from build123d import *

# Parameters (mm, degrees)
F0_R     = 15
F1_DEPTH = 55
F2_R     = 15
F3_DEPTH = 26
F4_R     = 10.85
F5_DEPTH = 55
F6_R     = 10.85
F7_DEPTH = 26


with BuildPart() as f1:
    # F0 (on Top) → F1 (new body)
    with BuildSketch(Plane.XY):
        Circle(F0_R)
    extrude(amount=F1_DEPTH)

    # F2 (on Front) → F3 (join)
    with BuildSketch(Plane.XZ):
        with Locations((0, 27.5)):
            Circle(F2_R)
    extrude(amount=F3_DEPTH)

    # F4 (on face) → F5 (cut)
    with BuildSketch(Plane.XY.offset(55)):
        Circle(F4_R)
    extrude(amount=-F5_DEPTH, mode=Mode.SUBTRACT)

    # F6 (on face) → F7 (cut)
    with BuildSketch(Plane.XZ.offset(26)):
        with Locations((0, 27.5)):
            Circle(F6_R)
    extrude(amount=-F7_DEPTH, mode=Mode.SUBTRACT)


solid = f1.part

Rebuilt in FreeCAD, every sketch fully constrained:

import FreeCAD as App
import Part
import Sketcher

V = App.Vector
Q = App.Units.Quantity

doc = App.newDocument("Part")
body = doc.addObject("PartDesign::Body", "Body")

sketch1 = body.newObject("Sketcher::SketchObject", "Sketch")
sketch1.AttachmentSupport = (doc.getObject("XY_Plane"), [""])
sketch1.MapMode = "FlatFace"
sketch1.addGeometry(Part.Circle(V(0, 0, 0), V(0, 0, 1), 15), False)
sketch1.addConstraint([
    Sketcher.Constraint("Coincident", 0, 3, -1, 1),
    Sketcher.Constraint("Diameter", 0, Q("30 mm")),
])
pad1 = body.newObject("PartDesign::Pad", "Pad")
pad1.Profile = sketch1
pad1.Length = 55

sketch2 = body.newObject("Sketcher::SketchObject", "Sketch001")
sketch2.AttachmentSupport = (doc.getObject("XZ_Plane"), [""])
sketch2.MapMode = "FlatFace"
sketch2.addGeometry(Part.Circle(V(0, 27.5, 0), V(0, 0, 1), 15), False)
sketch2.addConstraint([
    Sketcher.Constraint("PointOnObject", 0, 3, -2),
    Sketcher.Constraint("Diameter", 0, Q("30 mm")),
    Sketcher.Constraint("DistanceY", -1, 1, 0, 3, Q("27.5 mm")),
])
pad2 = body.newObject("PartDesign::Pad", "Pad001")
pad2.Profile = sketch2
pad2.Length = 26

sketch3 = body.newObject("Sketcher::SketchObject", "Sketch002")
sketch3.AttachmentSupport = (doc.getObject("XY_Plane"), [""])
sketch3.MapMode = "FlatFace"
sketch3.AttachmentOffset = App.Placement(V(0, 0, 55), App.Rotation())
sketch3.addGeometry(Part.Circle(V(0, 0, 0), V(0, 0, 1), 10.85), False)
sketch3.addConstraint([
    Sketcher.Constraint("Coincident", 0, 3, -1, 1),
    Sketcher.Constraint("Diameter", 0, Q("21.7 mm")),
])
pocket1 = body.newObject("PartDesign::Pocket", "Pocket")
pocket1.Profile = sketch3
pocket1.Length = 55

sketch4 = body.newObject("Sketcher::SketchObject", "Sketch003")
sketch4.AttachmentSupport = (doc.getObject("XZ_Plane"), [""])
sketch4.MapMode = "FlatFace"
sketch4.AttachmentOffset = App.Placement(V(0, 0, 26), App.Rotation())
sketch4.addGeometry(Part.Circle(V(0, 27.5, 0), V(0, 0, 1), 10.85), False)
sketch4.addConstraint([
    Sketcher.Constraint("PointOnObject", 0, 3, -2),
    Sketcher.Constraint("Diameter", 0, Q("21.7 mm")),
    Sketcher.Constraint("DistanceY", -1, 1, 0, 3, Q("27.5 mm")),
])
pocket2 = body.newObject("PartDesign::Pocket", "Pocket001")
pocket2.Profile = sketch4
pocket2.Length = 26

doc.recompute()
